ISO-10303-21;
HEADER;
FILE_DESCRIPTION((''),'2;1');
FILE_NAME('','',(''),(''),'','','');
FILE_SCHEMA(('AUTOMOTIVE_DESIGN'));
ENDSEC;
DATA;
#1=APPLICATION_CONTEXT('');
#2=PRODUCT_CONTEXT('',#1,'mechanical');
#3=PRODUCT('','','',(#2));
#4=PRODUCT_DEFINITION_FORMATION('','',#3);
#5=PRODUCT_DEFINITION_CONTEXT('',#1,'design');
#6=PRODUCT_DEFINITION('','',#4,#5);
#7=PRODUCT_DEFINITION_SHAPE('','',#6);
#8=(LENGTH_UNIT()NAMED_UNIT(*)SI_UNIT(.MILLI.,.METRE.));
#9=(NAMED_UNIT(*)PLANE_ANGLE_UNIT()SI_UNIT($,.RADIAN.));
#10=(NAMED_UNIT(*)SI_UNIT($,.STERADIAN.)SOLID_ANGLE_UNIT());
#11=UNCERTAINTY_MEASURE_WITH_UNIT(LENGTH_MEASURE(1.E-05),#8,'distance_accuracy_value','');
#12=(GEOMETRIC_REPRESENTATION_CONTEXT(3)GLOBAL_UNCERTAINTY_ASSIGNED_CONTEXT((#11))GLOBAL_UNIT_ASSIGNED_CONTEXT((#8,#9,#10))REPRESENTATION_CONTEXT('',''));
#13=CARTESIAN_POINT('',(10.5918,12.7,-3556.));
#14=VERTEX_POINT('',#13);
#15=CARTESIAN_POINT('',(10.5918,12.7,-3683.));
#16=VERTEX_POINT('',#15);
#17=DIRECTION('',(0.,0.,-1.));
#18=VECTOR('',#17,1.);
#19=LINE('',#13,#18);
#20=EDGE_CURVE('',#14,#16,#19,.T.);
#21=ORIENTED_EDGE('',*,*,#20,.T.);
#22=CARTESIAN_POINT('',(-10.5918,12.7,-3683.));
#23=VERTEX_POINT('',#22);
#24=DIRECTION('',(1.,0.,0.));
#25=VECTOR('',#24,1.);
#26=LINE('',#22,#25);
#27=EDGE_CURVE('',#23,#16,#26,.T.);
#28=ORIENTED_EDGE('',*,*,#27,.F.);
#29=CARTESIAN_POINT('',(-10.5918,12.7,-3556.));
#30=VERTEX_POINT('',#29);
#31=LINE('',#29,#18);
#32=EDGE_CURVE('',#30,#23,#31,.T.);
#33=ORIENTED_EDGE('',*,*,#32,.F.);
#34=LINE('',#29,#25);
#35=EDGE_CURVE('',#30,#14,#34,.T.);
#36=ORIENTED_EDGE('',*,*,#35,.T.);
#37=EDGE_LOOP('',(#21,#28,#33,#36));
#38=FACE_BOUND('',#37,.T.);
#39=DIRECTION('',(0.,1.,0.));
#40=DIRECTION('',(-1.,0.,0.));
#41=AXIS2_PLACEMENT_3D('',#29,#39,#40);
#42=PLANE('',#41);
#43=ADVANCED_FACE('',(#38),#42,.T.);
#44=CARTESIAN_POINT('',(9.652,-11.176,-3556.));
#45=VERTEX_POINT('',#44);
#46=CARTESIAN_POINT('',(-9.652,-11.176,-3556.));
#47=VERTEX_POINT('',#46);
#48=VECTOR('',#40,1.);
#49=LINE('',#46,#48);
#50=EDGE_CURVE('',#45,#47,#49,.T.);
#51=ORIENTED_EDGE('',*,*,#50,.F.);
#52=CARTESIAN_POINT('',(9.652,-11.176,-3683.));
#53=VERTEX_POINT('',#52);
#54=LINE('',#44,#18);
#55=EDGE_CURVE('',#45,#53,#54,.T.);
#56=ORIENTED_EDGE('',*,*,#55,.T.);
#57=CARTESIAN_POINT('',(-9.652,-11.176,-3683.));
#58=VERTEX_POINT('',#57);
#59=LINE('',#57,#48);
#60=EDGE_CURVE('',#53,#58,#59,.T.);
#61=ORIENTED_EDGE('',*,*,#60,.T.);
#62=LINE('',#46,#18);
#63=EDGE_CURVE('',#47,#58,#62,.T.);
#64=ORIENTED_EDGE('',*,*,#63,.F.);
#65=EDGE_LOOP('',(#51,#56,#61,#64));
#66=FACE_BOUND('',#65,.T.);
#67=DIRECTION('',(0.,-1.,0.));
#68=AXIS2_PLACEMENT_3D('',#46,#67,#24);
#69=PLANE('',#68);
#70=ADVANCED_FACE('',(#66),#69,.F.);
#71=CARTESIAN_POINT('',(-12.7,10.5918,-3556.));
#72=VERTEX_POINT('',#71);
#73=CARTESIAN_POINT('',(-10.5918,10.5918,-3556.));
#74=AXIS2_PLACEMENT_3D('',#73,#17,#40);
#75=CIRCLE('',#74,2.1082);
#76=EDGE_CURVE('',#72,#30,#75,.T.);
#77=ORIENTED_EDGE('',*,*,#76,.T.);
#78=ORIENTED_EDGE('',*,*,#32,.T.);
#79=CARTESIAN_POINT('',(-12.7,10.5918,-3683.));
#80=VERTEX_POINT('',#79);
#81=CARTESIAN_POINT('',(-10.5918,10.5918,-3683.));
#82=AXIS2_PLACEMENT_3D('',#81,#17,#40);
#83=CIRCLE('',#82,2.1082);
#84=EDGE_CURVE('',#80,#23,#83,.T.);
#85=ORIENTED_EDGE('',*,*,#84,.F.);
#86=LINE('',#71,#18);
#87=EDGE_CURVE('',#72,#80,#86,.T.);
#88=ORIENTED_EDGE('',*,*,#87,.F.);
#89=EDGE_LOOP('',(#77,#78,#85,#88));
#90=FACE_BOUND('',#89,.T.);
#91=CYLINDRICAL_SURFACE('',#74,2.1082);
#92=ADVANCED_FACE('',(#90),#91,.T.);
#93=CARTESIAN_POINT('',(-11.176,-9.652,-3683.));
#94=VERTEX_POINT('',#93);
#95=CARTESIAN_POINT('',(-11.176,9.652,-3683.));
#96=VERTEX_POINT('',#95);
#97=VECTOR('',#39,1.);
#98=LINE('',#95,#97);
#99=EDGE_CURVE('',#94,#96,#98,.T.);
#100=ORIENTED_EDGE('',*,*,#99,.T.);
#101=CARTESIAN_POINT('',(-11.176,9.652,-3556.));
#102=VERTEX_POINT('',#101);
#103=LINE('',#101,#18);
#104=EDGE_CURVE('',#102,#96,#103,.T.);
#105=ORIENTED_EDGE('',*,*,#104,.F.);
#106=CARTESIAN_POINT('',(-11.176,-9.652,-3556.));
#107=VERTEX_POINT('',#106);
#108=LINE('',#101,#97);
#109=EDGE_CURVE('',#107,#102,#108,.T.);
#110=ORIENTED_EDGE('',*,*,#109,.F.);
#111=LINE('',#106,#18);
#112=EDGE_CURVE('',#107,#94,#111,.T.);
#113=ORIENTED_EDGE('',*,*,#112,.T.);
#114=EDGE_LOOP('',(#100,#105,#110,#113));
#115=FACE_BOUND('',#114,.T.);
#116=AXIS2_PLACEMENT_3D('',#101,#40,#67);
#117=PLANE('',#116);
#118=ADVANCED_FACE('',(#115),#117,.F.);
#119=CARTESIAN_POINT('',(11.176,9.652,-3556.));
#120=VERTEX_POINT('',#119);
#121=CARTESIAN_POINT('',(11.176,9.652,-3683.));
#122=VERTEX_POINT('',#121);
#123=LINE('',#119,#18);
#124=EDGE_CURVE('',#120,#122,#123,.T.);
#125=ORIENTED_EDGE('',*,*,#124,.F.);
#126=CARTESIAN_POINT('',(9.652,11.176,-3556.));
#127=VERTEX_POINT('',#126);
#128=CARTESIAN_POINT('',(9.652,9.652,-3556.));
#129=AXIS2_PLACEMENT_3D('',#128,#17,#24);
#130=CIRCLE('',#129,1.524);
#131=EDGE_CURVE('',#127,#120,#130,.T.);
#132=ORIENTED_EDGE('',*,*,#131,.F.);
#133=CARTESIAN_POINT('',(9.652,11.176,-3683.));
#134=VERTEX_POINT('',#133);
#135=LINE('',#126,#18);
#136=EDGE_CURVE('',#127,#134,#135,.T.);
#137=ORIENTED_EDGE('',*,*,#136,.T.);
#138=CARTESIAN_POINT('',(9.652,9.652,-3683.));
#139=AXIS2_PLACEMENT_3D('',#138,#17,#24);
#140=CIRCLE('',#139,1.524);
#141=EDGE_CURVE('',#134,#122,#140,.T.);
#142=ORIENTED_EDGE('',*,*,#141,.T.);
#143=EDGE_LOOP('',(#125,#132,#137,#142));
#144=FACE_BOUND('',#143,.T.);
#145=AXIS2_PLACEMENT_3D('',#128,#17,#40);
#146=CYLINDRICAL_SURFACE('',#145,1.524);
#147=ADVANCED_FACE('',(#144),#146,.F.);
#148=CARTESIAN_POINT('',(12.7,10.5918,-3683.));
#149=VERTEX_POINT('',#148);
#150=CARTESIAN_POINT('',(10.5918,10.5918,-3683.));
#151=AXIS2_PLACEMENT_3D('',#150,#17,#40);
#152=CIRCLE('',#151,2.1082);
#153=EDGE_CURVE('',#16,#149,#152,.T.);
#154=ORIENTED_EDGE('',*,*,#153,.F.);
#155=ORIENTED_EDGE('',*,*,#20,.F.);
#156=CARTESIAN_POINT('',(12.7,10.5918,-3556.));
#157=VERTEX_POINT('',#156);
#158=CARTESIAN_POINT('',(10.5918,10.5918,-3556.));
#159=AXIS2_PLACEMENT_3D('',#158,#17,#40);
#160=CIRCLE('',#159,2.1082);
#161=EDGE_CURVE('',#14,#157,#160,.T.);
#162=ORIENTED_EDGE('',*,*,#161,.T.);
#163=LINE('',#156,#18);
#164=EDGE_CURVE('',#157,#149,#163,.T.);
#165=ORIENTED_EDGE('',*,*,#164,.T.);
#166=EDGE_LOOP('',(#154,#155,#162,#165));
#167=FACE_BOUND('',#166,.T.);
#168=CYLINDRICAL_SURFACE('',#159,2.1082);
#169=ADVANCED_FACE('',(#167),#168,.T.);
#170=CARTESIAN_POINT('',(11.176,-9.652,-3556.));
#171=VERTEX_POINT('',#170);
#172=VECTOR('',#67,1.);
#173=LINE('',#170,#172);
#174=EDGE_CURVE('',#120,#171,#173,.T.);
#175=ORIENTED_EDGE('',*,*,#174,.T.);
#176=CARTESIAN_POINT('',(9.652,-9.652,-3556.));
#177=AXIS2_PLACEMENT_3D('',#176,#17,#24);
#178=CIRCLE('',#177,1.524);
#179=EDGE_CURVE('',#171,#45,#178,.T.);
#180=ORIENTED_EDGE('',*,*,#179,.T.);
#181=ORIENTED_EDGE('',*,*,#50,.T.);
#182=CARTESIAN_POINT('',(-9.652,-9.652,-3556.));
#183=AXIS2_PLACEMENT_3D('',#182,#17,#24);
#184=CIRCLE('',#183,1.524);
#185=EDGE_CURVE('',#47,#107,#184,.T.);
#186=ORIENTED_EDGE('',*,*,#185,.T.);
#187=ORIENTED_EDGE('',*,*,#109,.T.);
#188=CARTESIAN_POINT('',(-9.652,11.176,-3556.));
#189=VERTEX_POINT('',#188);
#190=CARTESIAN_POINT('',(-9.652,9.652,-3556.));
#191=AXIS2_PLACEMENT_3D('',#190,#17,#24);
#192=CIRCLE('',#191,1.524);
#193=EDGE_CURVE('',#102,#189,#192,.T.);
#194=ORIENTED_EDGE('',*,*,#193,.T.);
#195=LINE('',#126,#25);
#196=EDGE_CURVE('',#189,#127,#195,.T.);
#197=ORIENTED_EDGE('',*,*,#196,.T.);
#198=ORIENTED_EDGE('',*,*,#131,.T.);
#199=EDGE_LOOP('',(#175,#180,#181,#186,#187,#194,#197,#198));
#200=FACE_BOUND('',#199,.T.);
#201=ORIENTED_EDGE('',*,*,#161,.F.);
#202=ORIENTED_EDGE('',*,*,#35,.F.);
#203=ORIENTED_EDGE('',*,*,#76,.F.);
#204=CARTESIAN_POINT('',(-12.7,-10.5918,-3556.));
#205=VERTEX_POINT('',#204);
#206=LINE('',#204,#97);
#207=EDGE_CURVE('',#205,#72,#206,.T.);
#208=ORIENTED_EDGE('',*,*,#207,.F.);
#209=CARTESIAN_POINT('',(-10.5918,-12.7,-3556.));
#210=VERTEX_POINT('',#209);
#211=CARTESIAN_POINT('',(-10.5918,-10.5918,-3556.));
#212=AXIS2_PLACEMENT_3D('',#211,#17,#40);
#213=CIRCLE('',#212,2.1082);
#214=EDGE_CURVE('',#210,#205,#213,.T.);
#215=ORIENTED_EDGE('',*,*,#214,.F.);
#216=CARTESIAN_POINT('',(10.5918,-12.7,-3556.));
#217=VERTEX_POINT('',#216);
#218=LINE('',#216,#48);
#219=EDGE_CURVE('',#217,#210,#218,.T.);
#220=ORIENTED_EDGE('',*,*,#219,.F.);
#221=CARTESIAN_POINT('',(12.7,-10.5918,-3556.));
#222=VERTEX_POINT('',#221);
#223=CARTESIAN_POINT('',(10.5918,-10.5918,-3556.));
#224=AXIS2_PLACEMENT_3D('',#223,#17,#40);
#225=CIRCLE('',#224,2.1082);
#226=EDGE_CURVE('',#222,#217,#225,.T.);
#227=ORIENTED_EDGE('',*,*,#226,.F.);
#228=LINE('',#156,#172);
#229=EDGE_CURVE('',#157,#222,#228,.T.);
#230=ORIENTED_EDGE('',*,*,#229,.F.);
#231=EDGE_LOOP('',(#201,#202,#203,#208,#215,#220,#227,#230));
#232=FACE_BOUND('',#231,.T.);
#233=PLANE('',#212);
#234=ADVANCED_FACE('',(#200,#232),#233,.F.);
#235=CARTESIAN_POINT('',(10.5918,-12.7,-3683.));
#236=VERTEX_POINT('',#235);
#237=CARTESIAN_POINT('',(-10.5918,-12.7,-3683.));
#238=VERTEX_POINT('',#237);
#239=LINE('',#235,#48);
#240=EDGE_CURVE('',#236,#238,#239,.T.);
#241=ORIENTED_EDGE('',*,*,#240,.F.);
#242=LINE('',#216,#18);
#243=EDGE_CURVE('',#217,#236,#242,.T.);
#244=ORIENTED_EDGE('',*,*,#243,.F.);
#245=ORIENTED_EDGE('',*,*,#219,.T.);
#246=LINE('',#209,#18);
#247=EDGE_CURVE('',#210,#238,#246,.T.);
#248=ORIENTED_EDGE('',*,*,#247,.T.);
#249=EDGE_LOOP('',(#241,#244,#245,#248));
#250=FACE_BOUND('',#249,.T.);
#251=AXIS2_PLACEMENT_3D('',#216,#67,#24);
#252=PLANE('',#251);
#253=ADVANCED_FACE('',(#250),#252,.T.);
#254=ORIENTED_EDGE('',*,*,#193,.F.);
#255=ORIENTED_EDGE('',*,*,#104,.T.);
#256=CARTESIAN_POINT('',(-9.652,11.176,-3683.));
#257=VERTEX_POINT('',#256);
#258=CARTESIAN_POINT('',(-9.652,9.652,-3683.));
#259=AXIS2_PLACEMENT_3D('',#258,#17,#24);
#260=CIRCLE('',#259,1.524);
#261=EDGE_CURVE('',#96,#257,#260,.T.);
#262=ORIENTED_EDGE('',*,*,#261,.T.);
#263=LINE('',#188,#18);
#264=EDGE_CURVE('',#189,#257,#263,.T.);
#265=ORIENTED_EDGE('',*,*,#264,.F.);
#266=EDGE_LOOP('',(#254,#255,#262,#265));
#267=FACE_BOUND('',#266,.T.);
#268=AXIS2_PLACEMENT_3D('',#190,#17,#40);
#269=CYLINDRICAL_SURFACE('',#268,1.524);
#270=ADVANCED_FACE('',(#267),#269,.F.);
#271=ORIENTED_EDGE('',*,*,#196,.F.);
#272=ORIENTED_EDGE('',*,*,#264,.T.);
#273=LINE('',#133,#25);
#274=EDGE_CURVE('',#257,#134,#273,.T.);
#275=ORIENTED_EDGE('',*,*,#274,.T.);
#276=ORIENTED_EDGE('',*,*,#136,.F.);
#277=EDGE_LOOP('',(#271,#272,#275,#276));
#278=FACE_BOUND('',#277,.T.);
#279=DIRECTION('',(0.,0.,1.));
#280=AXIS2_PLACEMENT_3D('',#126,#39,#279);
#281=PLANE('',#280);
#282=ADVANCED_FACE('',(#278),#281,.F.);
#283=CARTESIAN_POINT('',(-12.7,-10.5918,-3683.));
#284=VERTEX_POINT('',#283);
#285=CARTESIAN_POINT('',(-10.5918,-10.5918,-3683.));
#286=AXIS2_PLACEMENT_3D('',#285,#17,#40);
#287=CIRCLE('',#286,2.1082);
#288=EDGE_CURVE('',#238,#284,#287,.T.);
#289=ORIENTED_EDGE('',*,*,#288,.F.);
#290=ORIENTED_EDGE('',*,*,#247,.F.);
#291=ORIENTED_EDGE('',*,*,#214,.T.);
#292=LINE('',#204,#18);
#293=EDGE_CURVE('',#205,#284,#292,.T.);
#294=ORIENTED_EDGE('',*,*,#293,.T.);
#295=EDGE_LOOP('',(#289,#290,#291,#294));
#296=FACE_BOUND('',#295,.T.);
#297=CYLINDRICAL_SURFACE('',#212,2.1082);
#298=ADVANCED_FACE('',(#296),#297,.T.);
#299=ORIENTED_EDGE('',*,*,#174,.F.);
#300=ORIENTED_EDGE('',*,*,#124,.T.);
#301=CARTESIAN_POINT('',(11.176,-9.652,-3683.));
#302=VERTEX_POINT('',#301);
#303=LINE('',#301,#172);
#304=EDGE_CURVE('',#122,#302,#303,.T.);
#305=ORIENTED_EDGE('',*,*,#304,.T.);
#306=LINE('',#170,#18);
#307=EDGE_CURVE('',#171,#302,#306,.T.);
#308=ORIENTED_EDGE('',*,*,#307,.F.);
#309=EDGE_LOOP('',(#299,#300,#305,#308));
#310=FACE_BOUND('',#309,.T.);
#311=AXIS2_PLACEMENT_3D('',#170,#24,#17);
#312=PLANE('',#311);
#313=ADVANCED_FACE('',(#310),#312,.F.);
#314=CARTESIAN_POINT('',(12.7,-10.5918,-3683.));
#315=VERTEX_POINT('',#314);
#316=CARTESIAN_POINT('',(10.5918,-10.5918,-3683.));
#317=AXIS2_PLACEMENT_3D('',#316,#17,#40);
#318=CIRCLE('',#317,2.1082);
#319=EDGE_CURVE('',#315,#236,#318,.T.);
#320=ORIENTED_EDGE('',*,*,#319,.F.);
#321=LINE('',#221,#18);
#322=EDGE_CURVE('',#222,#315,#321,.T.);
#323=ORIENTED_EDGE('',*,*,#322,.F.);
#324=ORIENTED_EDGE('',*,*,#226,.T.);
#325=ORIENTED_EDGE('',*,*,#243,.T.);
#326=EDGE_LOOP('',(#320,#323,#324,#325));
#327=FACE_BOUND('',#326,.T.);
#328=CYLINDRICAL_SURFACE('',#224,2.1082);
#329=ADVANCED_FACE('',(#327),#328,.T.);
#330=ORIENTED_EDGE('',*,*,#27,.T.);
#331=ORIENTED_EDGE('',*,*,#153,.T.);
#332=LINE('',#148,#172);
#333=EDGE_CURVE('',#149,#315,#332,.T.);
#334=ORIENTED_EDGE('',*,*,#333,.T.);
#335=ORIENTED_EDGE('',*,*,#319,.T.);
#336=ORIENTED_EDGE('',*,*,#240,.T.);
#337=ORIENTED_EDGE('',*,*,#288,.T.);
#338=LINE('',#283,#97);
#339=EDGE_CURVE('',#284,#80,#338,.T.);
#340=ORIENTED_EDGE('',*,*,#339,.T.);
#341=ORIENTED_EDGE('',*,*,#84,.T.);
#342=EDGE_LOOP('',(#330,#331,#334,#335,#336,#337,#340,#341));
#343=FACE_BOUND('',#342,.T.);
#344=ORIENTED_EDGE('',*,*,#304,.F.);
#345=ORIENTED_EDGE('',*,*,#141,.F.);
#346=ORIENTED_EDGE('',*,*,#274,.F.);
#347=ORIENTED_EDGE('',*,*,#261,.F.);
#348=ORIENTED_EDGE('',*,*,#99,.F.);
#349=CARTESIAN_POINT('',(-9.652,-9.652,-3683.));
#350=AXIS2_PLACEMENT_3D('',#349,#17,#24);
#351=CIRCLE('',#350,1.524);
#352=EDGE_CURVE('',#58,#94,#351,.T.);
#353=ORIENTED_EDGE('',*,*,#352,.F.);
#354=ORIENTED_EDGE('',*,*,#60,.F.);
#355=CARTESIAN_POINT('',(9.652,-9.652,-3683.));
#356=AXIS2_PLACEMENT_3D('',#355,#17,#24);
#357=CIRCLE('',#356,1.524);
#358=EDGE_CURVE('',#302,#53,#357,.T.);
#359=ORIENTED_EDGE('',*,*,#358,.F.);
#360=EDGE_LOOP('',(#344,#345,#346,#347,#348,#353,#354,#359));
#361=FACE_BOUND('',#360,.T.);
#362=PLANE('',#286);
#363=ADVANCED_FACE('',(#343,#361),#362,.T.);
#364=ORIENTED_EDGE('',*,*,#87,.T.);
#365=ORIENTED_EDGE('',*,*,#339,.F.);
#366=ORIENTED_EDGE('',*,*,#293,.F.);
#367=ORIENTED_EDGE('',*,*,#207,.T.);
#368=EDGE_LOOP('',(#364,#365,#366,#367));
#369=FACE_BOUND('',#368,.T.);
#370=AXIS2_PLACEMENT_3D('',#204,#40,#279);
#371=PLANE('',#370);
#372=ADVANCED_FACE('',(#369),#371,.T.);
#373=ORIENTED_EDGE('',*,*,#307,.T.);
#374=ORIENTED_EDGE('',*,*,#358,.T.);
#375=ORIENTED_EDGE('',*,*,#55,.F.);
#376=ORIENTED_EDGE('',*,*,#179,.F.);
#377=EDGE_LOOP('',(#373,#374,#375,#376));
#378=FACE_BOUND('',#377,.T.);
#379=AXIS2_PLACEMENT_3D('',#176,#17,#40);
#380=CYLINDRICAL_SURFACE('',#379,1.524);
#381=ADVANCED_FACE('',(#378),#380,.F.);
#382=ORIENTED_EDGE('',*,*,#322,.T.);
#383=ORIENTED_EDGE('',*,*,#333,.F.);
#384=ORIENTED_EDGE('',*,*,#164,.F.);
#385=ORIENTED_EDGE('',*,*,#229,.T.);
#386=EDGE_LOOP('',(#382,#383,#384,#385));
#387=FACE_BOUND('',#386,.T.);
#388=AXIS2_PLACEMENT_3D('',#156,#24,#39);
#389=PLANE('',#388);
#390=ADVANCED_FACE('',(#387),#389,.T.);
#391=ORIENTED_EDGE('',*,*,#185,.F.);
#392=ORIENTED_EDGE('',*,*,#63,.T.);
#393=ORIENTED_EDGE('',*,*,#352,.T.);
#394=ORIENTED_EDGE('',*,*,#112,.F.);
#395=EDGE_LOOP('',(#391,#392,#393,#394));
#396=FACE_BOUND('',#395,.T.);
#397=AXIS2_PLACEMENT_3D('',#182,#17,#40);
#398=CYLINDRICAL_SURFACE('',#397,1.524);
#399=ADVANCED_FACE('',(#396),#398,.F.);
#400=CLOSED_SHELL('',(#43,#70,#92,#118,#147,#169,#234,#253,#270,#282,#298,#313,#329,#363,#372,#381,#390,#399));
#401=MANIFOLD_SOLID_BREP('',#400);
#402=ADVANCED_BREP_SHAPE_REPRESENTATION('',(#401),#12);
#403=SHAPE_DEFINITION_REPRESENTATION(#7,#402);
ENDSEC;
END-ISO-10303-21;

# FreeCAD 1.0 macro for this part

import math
import FreeCAD as App
import Part
import Sketcher

V = App.Vector
Q = App.Units.Quantity

doc = App.newDocument("Part")
params = doc.addObject("Spreadsheet::Sheet", "Params")
for row, (alias, value) in enumerate([
    ("sketch1_radius", "0.06 in"),
    ("sketch1_radius2", "0.083 in"),
    ("sketch1_width", "0.76 in"),
    ("pad1_length", "5 in"),
], start=1):
    params.set(f"A{row}", alias)
    params.set(f"B{row}", "=" + value)
    params.setAlias(f"B{row}", alias)

body = doc.addObject("PartDesign::Body", "Body")

# Sketch on XY plane
sketch1 = body.newObject("Sketcher::SketchObject", "Sketch")
sketch1.AttachmentSupport = (doc.getObject("XY_Plane"), [""])
sketch1.MapMode = "FlatFace"
sketch1.AttachmentOffset = App.Placement(V(0, 0, -145 * 25.4), App.Rotation())
sketch1.addGeometry([
    Part.LineSegment(V(-12.7, -10.5918, 0), V(-12.7, 10.5918, 0)),  # 0
    Part.ArcOfCircle(Part.Circle(V(-10.5918, 10.5918, 0), V(0, 0, 1), 2.1082), math.radians(90), math.radians(180)),  # 1
    Part.LineSegment(V(-10.5918, 12.7, 0), V(10.5918, 12.7, 0)),  # 2
    Part.ArcOfCircle(Part.Circle(V(10.5918, 10.5918, 0), V(0, 0, 1), 2.1082), math.radians(0), math.radians(90)),  # 3
    Part.LineSegment(V(12.7, 10.5918, 0), V(12.7, -10.5918, 0)),  # 4
    Part.ArcOfCircle(Part.Circle(V(10.5918, -10.5918, 0), V(0, 0, 1), 2.1082), math.radians(-90), math.radians(0)),  # 5
    Part.LineSegment(V(10.5918, -12.7, 0), V(-10.5918, -12.7, 0)),  # 6
    Part.ArcOfCircle(Part.Circle(V(-10.5918, -10.5918, 0), V(0, 0, 1), 2.1082), math.radians(180), math.radians(270)),  # 7
    Part.ArcOfCircle(Part.Circle(V(-9.652, 9.652, 0), V(0, 0, 1), 1.524), math.radians(90), math.radians(180)),  # 8
    Part.LineSegment(V(-11.176, 9.652, 0), V(-11.176, -9.652, 0)),  # 9
    Part.ArcOfCircle(Part.Circle(V(-9.652, -9.652, 0), V(0, 0, 1), 1.524), math.radians(180), math.radians(270)),  # 10
    Part.LineSegment(V(-9.652, -11.176, 0), V(9.652, -11.176, 0)),  # 11
    Part.ArcOfCircle(Part.Circle(V(9.652, -9.652, 0), V(0, 0, 1), 1.524), math.radians(-90), math.radians(0)),  # 12
    Part.LineSegment(V(11.176, -9.652, 0), V(11.176, 9.652, 0)),  # 13
    Part.ArcOfCircle(Part.Circle(V(9.652, 9.652, 0), V(0, 0, 1), 1.524), math.radians(0), math.radians(90)),  # 14
    Part.LineSegment(V(9.652, 11.176, 0), V(-9.652, 11.176, 0)),  # 15
], False)
sketch1.addConstraint([
    Sketcher.Constraint("Tangent", 0, 2, 1, 2),
    Sketcher.Constraint("Tangent", 1, 1, 2, 1),
    Sketcher.Constraint("Tangent", 2, 2, 3, 2),
    Sketcher.Constraint("Tangent", 3, 1, 4, 1),
    Sketcher.Constraint("Tangent", 4, 2, 5, 2),
    Sketcher.Constraint("Tangent", 5, 1, 6, 1),
    Sketcher.Constraint("Tangent", 6, 2, 7, 2),
    Sketcher.Constraint("Tangent", 7, 1, 0, 1),
    Sketcher.Constraint("Tangent", 8, 2, 9, 1),
    Sketcher.Constraint("Tangent", 9, 2, 10, 1),
    Sketcher.Constraint("Tangent", 10, 2, 11, 1),
    Sketcher.Constraint("Tangent", 11, 2, 12, 1),
    Sketcher.Constraint("Tangent", 12, 2, 13, 1),
    Sketcher.Constraint("Tangent", 13, 2, 14, 1),
    Sketcher.Constraint("Tangent", 14, 2, 15, 1),
    Sketcher.Constraint("Tangent", 15, 2, 8, 1),
    Sketcher.Constraint("Vertical", 0),
    Sketcher.Constraint("Horizontal", 2),
    Sketcher.Constraint("Vertical", 4),
    Sketcher.Constraint("Horizontal", 6),
    Sketcher.Constraint("Vertical", 9),
    Sketcher.Constraint("Horizontal", 11),
    Sketcher.Constraint("Vertical", 13),
    Sketcher.Constraint("Horizontal", 15),
    Sketcher.Constraint("Equal", 1, 3),
    Sketcher.Constraint("Equal", 3, 5),
    Sketcher.Constraint("Equal", 5, 7),
    Sketcher.Constraint("Equal", 8, 10),
    Sketcher.Constraint("Equal", 10, 12),
    Sketcher.Constraint("Equal", 12, 14),
    Sketcher.Constraint("Symmetric", 1, 3, 5, 3, -1, 1),
    Sketcher.Constraint("Symmetric", 8, 3, 12, 3, -1, 1),
    Sketcher.Constraint("Equal", 6, 0),
    Sketcher.Constraint("Equal", 15, 9),
    Sketcher.Constraint("Radius", 8, Q("0.06 in")),
    Sketcher.Constraint("Radius", 1, Q("0.083 in")),
    Sketcher.Constraint("DistanceX", 11, 1, 11, 2, Q("0.76 in")),
    Sketcher.Constraint("DistanceX", 0, 2, -1, 1, Q("0.5 in")),
])
sketch1.setExpression("Constraints[34]", "Params.sketch1_radius")
sketch1.setExpression("Constraints[35]", "Params.sketch1_radius2")
sketch1.setExpression("Constraints[36]", "Params.sketch1_width")
pad1 = body.newObject("PartDesign::Pad", "Pad")
pad1.Profile = sketch1
pad1.setExpression("Length", "Params.pad1_length")

doc.recompute()
